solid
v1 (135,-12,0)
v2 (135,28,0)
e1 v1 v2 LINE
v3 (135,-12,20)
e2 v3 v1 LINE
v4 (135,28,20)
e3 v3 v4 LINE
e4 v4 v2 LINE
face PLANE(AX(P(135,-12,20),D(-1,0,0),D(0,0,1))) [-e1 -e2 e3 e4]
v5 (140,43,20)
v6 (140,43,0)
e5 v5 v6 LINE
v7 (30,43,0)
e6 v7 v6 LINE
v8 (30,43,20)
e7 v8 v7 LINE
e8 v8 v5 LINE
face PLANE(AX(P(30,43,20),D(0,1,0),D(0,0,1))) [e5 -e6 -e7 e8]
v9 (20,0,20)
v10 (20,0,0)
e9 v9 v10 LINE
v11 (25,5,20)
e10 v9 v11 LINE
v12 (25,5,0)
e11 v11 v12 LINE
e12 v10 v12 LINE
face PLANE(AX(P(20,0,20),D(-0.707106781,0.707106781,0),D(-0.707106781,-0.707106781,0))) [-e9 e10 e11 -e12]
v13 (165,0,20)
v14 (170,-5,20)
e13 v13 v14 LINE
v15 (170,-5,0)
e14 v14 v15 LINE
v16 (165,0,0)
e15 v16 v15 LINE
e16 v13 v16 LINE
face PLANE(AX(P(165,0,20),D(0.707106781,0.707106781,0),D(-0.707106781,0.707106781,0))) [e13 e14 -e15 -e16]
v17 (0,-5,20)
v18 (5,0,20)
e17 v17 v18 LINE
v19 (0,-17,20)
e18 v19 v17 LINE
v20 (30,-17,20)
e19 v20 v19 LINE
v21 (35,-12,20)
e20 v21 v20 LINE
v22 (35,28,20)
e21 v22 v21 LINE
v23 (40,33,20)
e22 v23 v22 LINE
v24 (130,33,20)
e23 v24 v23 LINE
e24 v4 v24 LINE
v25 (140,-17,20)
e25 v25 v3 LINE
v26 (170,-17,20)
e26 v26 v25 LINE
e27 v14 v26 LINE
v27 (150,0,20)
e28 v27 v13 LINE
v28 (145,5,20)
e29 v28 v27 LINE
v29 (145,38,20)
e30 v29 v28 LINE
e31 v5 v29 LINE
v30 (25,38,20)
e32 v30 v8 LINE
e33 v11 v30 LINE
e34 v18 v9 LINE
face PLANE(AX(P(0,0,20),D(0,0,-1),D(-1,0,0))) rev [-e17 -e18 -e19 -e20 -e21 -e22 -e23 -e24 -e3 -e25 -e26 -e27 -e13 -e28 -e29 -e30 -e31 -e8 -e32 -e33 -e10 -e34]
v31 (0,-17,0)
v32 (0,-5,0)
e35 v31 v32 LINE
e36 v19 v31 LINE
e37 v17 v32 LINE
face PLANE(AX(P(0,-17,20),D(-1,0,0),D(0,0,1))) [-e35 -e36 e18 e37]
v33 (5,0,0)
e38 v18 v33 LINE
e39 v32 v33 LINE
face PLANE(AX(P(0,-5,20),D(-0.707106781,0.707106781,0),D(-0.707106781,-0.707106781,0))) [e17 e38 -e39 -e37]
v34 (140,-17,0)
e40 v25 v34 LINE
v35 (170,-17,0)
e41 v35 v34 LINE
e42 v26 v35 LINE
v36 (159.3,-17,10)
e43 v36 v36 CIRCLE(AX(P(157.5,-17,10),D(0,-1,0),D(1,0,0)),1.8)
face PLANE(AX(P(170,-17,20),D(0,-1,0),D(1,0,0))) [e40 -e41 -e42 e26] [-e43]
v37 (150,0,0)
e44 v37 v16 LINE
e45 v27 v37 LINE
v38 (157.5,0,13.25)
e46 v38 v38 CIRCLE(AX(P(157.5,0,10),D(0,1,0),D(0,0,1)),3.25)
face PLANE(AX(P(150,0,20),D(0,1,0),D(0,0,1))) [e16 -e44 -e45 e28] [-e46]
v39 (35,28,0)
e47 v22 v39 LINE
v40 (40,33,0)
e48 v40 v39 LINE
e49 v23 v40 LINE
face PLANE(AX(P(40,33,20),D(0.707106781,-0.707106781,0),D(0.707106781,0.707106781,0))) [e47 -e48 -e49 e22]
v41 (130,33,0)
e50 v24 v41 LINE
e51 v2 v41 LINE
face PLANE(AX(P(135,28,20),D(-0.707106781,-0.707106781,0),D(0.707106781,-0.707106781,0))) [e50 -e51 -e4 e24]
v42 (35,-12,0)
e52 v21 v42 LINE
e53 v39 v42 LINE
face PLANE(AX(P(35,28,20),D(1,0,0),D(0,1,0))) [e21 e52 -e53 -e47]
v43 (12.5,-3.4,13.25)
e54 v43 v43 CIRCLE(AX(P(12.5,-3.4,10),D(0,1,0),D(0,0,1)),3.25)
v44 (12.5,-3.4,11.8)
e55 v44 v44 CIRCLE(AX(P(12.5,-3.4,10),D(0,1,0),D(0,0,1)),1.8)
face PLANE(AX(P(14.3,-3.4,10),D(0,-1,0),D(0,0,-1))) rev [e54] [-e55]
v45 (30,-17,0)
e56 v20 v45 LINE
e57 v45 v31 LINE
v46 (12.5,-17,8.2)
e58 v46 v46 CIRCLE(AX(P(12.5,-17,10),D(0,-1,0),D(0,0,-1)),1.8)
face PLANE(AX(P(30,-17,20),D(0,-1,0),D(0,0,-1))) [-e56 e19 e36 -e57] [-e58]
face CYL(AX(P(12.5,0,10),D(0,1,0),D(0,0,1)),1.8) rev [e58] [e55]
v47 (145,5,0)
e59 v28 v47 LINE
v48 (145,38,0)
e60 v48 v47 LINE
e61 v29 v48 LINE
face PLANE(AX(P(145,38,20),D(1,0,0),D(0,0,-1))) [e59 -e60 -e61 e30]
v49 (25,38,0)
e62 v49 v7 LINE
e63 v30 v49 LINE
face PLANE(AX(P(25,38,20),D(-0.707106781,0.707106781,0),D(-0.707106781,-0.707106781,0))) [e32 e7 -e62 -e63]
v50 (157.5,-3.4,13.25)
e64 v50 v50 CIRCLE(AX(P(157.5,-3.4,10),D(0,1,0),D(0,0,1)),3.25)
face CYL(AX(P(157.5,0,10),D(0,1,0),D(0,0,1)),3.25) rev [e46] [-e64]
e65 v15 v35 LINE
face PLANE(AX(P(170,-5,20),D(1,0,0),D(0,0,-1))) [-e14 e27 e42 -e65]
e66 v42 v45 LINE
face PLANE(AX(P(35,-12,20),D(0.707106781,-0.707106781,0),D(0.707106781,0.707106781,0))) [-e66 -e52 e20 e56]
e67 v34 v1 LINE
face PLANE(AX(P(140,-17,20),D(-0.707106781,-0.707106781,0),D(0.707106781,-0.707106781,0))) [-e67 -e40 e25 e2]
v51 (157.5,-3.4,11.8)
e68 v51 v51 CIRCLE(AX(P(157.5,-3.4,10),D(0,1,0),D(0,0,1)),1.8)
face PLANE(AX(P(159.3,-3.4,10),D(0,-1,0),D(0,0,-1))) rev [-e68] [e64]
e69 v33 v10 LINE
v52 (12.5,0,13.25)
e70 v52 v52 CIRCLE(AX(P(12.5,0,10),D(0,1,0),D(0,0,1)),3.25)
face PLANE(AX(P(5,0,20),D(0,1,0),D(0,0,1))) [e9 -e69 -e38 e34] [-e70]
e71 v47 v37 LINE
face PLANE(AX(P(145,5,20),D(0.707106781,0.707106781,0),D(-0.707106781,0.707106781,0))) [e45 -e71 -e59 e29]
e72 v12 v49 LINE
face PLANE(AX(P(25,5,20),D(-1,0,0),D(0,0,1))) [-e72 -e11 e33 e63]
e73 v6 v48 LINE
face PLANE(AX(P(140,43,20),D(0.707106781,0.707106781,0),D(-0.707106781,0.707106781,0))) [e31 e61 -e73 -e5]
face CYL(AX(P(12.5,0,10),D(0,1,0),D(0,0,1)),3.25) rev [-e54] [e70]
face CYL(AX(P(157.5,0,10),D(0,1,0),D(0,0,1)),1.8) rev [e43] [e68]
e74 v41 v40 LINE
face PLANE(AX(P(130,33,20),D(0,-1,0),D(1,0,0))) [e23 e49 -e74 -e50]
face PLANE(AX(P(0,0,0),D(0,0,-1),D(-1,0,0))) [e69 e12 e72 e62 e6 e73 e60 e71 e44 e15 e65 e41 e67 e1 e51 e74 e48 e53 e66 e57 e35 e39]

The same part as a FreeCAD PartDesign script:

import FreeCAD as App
import Part
import Sketcher

V = App.Vector


def add_polygon(sketch, points):
    """Adds a closed chain of lines whose ends are joined by coincident constraints."""
    first, n = sketch.GeometryCount, len(points)
    for a, b in zip(points, points[1:] + points[:1]):
        sketch.addGeometry(Part.LineSegment(App.Vector(*a, 0), App.Vector(*b, 0)), False)
    for i in range(n):
        sketch.addConstraint(Sketcher.Constraint("Coincident", first + i, 2, first + (i + 1) % n, 1))

doc = App.newDocument("Part")
body = doc.addObject("PartDesign::Body", "Body")

sketch1 = body.newObject("Sketcher::SketchObject", "Sketch")
sketch1.AttachmentSupport = (doc.getObject("XY_Plane"), [""])
sketch1.MapMode = "FlatFace"
add_polygon(sketch1, [(20, 0), (5, 0), (0, -5), (0, -17), (30, -17), (35, -12), (35, 28), (40, 33), (130, 33), (135, 28), (135, -12), (140, -17), (170, -17), (170, -5), (165, 0), (150, 0), (145, 5), (145, 38), (140, 43), (30, 43), (25, 38), (25, 5)])
sketch1.addConstraint([
    Sketcher.Constraint("Horizontal", 0),
    Sketcher.Constraint("Vertical", 2),
    Sketcher.Constraint("Horizontal", 3),
    Sketcher.Constraint("Vertical", 5),
    Sketcher.Constraint("Horizontal", 7),
    Sketcher.Constraint("Vertical", 9),
    Sketcher.Constraint("Horizontal", 11),
    Sketcher.Constraint("Vertical", 12),
    Sketcher.Constraint("Horizontal", 14),
    Sketcher.Constraint("Vertical", 16),
    Sketcher.Constraint("Horizontal", 18),
    Sketcher.Constraint("Vertical", 20),
    Sketcher.Constraint("PointOnObject", 0, 2, -1),
    Sketcher.Constraint("PointOnObject", 1, 2, -2),
    Sketcher.Constraint("PointOnObject", 13, 2, -1),
    Sketcher.Constraint("Parallel", 1, 4),
    Sketcher.Constraint("Parallel", 4, 6),
    Sketcher.Constraint("Perpendicular", 6, 8),
    Sketcher.Constraint("Parallel", 8, 10),
    Sketcher.Constraint("Parallel", 10, 13),
    Sketcher.Constraint("Parallel", 13, 15),
    Sketcher.Constraint("Parallel", 15, 17),
    Sketcher.Constraint("Perpendicular", 17, 19),
    Sketcher.Constraint("Parallel", 19, 21),
    Sketcher.Constraint("Horizontal", 5, 2, 8, 2),
    Sketcher.Constraint("Horizontal", 4, 2, 9, 2),
    Sketcher.Constraint("Horizontal", 3, 2, 10, 2),
    Sketcher.Constraint("Horizontal", 1, 2, 12, 2),
    Sketcher.Constraint("Horizontal", 16, 2, 19, 2),
    Sketcher.Constraint("Horizontal", 15, 2, 20, 2),
    Sketcher.Constraint("Vertical", 10, 2, 17, 2),
    Sketcher.Constraint("Vertical", 3, 2, 18, 2),
    Sketcher.Constraint("Equal", 3, 11),
    Sketcher.Constraint("Equal", 0, 14),
    Sketcher.Constraint("Equal", 1, 4),
    Sketcher.Constraint("Equal", 4, 6),
    Sketcher.Constraint("Equal", 13, 15),
    Sketcher.Constraint("Equal", 15, 17),
    Sketcher.Constraint("DistanceX", 0, 2, 0, 1, 15.0),
    Sketcher.Constraint("DistanceX", 3, 1, 3, 2, 30.0),
    Sketcher.Constraint("DistanceX", 7, 1, 7, 2, 90.0),
    Sketcher.Constraint("DistanceY", 2, 2, 2, 1, 12.0),
    Sketcher.Constraint("DistanceY", 5, 1, 5, 2, 40.0),
    Sketcher.Constraint("DistanceY", 16, 1, 16, 2, 33.0),
])
pad1 = body.newObject("PartDesign::Pad", "Pad")
pad1.Profile = sketch1
pad1.Length = 20

sketch2 = body.newObject("Sketcher::SketchObject", "Sketch001")
sketch2.AttachmentSupport = (doc.getObject("XZ_Plane"), [""])
sketch2.MapMode = "FlatFace"
sketch2.addGeometry([
    Part.Circle(V(157.5, 10, 0), V(0, 0, 1), 1.8),
    Part.Circle(V(12.5, 10, 0), V(0, 0, 1), 1.8),
], False)
sketch2.addConstraint([
    Sketcher.Constraint("Equal", 0, 1),
    Sketcher.Constraint("Horizontal", 0, 3, 1, 3),
    Sketcher.Constraint("Diameter", 0, 3.6),
    Sketcher.Constraint("DistanceY", -1, 1, 0, 3, 10.0),
    Sketcher.Constraint("DistanceX", 1, 3, 0, 3, 145.0),
    Sketcher.Constraint("DistanceX", -1, 1, 0, 3, 157.5),
])
doc.recompute()
hole = body.newObject("PartDesign::Hole", "Hole")
hole.Profile = sketch2
hole.ThreadType = "None"
hole.Diameter = 3.6
hole.DepthType = "Dimension"
hole.Depth = 17
hole.DrillPoint = "Flat"
hole.HoleCutType = "Counterbore"
hole.HoleCutDiameter = 6.5
hole.HoleCutDepth = 3.4
hole.Reversed = True

doc.recompute()
